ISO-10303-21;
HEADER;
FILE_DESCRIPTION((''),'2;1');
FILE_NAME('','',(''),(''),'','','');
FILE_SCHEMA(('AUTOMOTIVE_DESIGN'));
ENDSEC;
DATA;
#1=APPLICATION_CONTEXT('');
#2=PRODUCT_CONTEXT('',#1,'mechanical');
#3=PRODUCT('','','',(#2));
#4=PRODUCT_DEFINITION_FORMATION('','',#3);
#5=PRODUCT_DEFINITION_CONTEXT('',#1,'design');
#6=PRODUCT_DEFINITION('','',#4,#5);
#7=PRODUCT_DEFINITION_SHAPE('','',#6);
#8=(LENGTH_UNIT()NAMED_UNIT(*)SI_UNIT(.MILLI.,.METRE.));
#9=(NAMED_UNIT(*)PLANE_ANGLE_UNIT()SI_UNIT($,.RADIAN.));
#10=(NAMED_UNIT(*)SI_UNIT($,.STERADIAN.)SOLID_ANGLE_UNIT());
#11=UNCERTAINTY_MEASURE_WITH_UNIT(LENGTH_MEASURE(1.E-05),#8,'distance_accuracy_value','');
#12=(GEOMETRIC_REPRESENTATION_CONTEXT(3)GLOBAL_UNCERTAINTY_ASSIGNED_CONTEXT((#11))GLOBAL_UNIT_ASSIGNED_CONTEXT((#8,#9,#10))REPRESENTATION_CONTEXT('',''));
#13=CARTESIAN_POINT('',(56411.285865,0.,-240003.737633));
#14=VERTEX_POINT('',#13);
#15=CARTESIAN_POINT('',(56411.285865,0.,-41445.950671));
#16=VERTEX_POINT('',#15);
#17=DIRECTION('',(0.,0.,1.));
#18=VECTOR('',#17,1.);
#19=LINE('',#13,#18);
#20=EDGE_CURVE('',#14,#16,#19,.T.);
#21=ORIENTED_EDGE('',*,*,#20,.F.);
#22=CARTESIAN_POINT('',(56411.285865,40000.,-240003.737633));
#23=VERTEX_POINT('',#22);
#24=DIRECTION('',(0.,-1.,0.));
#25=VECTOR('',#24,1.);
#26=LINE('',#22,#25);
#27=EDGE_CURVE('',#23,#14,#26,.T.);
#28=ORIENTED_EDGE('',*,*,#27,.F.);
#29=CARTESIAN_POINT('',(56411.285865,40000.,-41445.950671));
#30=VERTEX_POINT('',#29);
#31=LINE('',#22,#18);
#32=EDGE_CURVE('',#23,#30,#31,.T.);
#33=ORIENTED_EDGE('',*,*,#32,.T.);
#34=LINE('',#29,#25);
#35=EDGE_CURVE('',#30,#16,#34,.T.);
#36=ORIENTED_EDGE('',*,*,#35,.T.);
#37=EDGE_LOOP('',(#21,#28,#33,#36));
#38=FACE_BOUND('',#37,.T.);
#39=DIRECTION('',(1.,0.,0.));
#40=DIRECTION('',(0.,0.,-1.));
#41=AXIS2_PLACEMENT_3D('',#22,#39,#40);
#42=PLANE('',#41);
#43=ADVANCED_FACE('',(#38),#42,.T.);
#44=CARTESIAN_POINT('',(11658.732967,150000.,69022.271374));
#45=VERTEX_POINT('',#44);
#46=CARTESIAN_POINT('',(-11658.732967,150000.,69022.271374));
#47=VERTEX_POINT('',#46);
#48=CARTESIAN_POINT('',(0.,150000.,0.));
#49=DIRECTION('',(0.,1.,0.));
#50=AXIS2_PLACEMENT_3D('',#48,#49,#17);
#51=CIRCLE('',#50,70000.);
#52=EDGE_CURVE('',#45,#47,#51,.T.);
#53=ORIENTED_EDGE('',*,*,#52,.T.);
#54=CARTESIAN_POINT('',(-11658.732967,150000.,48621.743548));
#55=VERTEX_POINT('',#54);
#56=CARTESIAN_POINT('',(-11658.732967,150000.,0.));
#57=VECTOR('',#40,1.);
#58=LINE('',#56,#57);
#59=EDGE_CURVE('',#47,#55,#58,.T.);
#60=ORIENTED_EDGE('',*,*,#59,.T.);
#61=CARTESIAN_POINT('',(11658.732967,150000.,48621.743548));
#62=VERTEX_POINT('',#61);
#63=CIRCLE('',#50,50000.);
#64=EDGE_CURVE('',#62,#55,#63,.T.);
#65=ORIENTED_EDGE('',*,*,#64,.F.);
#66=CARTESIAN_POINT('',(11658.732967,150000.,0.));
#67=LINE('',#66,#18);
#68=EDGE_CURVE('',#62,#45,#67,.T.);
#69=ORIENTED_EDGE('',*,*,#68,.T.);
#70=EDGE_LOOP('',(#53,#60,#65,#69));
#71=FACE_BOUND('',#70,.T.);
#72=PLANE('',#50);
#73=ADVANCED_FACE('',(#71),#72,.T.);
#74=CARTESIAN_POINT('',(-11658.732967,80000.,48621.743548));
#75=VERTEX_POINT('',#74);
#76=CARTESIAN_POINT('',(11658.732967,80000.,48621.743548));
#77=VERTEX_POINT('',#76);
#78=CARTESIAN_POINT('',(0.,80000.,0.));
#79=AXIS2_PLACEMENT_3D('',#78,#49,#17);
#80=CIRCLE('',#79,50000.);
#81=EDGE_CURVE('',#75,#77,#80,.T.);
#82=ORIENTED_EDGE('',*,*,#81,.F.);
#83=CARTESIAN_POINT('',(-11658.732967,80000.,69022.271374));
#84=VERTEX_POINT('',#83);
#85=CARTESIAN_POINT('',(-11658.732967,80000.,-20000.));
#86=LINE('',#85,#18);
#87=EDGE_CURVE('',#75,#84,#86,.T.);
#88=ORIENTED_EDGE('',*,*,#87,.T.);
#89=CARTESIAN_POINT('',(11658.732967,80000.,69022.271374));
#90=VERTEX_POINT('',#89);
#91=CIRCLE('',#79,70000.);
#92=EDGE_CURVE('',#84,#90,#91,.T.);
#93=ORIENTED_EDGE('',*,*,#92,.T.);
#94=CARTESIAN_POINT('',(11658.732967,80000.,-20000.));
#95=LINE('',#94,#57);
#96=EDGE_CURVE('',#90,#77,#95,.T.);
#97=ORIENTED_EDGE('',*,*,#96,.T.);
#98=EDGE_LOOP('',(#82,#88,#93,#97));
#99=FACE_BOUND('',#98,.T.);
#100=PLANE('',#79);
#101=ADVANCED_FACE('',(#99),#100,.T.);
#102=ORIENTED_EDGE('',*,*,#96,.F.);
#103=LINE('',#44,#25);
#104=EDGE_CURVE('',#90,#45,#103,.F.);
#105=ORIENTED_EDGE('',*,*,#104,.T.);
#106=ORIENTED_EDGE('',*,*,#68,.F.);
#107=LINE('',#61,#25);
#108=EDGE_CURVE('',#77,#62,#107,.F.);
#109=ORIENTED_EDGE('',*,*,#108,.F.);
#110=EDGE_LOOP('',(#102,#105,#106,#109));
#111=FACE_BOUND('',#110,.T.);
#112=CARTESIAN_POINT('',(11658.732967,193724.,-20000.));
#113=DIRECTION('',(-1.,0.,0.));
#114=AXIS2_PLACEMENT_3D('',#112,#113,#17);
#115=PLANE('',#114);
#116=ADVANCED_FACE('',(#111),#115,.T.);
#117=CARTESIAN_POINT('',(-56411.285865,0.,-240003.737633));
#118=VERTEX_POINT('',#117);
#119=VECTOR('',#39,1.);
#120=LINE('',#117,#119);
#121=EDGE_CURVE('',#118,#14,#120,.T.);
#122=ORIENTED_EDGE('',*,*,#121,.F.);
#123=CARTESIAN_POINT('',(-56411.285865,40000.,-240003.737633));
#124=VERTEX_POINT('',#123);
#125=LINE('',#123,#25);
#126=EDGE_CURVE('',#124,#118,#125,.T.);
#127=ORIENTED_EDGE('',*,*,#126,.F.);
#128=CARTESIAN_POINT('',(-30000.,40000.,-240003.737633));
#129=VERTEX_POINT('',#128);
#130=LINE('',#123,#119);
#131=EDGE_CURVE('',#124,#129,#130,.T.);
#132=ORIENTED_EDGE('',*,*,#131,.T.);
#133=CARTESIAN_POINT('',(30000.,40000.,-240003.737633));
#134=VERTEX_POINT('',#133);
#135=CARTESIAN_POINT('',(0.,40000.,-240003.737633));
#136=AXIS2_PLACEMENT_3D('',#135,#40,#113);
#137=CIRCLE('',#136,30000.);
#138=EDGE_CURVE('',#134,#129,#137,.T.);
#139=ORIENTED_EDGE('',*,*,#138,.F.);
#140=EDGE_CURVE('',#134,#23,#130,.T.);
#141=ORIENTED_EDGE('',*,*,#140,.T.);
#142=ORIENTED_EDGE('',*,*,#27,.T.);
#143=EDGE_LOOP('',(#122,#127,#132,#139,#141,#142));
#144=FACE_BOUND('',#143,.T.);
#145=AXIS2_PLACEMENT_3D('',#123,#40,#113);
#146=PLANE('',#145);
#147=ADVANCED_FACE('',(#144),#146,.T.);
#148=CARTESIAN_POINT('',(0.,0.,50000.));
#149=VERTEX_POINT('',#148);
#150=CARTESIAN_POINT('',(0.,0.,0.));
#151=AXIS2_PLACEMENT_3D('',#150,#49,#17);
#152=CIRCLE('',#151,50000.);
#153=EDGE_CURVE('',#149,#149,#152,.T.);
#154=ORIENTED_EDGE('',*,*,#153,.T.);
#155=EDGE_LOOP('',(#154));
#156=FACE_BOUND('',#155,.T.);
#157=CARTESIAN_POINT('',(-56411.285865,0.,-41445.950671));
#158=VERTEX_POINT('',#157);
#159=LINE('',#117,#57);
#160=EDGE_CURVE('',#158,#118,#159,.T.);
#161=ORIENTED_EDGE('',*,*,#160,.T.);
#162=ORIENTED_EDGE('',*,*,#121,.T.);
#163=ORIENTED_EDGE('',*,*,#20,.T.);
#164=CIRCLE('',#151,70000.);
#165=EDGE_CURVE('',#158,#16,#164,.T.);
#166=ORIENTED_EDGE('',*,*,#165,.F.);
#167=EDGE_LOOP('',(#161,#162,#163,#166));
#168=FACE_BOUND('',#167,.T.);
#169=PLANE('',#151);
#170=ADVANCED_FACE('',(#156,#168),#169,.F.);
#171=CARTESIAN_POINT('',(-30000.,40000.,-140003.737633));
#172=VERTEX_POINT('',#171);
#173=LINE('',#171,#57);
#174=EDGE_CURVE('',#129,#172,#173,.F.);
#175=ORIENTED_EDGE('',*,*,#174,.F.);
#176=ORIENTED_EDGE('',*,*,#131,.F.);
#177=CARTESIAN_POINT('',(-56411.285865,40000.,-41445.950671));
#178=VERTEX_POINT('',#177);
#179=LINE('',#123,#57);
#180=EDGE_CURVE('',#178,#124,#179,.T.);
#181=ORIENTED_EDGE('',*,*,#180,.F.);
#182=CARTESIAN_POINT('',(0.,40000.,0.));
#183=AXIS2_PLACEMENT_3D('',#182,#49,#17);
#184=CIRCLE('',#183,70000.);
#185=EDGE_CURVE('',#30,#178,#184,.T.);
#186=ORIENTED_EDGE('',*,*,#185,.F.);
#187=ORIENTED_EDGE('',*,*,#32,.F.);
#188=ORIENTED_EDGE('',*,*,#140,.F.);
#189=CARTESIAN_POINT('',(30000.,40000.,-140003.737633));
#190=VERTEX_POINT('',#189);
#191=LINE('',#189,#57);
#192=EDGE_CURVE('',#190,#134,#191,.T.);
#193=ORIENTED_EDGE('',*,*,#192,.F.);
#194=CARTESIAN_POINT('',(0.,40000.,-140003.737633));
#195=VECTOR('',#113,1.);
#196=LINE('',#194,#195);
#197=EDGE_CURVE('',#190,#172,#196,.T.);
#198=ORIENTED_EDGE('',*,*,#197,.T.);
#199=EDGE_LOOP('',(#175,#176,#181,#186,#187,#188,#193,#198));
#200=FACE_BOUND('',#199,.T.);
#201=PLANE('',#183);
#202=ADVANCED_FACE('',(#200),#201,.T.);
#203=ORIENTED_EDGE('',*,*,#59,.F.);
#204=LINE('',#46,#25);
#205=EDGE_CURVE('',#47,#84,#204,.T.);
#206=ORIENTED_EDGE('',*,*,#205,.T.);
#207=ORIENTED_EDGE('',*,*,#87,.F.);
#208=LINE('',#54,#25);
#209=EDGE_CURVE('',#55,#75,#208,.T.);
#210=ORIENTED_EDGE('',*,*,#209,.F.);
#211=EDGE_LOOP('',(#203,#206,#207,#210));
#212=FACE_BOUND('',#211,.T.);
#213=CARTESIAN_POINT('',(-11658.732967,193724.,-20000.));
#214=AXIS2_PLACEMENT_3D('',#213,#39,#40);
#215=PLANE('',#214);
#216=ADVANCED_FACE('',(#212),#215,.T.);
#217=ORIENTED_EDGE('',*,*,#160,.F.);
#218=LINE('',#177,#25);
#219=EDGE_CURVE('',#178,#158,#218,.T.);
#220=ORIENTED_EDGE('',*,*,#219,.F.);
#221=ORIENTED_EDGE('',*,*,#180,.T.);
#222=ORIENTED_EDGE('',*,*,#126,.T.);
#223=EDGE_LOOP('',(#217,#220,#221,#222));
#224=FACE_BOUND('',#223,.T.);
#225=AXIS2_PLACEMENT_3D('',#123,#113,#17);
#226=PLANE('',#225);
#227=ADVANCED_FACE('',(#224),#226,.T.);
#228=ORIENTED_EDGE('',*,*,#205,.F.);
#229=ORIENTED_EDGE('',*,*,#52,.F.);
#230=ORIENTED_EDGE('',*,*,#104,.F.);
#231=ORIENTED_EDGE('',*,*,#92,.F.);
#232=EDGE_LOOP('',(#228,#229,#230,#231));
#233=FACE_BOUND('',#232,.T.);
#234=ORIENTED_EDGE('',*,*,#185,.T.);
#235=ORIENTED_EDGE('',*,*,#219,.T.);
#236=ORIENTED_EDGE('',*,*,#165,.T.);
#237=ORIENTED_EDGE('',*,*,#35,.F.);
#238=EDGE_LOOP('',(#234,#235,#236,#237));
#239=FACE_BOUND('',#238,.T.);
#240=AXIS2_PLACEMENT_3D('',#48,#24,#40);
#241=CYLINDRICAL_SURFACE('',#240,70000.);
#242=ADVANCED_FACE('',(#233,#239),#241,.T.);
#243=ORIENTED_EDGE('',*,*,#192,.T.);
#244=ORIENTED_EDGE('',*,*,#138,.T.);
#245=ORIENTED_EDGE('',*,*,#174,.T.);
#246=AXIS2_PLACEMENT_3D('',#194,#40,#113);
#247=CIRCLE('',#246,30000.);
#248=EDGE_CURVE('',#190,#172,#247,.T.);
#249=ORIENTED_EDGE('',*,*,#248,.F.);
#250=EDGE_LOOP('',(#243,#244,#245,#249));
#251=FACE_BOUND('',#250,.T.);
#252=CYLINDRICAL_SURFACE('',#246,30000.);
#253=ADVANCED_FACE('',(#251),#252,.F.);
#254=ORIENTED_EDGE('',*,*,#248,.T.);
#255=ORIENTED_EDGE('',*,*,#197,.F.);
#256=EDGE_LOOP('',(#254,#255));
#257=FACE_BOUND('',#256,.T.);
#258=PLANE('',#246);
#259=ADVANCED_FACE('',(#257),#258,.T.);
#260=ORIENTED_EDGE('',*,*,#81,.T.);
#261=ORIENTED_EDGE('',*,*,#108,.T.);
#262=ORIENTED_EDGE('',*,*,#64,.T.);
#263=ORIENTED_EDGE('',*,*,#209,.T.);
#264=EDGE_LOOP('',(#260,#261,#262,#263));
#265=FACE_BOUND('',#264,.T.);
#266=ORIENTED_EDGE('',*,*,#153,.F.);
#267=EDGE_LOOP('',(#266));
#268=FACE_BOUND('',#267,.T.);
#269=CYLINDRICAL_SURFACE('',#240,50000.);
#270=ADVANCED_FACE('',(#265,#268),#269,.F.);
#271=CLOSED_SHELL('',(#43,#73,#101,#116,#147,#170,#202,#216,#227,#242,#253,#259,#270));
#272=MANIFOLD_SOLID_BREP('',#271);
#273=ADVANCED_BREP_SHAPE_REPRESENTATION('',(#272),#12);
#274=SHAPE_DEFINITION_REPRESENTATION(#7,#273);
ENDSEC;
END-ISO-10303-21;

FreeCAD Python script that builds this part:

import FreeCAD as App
import Part
import Sketcher
Q = App.Units.Quantity


def add_polygon(sketch, points):
    """Adds a closed chain of lines whose ends are joined by coincident constraints."""
    first, n = sketch.GeometryCount, len(points)
    for a, b in zip(points, points[1:] + points[:1]):
        sketch.addGeometry(Part.LineSegment(App.Vector(*a, 0), App.Vector(*b, 0)), False)
    for i in range(n):
        sketch.addConstraint(Sketcher.Constraint("Coincident", first + i, 2, first + (i + 1) % n, 1))

doc = App.newDocument("Part")
body = doc.addObject("PartDesign::Body", "Body")

sketch1 = body.newObject("Sketcher::SketchObject", "Sketch")
sketch1.AttachmentSupport = (doc.getObject("XZ_Plane"), [""])
sketch1.MapMode = "FlatFace"
sketch1.addGeometry(Part.Circle(App.Vector(0, 0, 0), App.Vector(0, 0, 1), 70000), False)
sketch1.addGeometry(Part.Circle(App.Vector(0, 0, 0), App.Vector(0, 0, 1), 50000), False)
sketch1.addConstraint(Sketcher.Constraint("Coincident", 0, 3, -1, 1))
sketch1.addConstraint(Sketcher.Constraint("Coincident", 1, 3, -1, 1))
sketch1.addConstraint(Sketcher.Constraint("Diameter", 0, Q("140000 mm")))
sketch1.addConstraint(Sketcher.Constraint("Diameter", 1, Q("100000 mm")))
pad1 = body.newObject("PartDesign::Pad", "Pad")
pad1.Profile = sketch1
pad1.Length = 150000
pad1.Reversed = True

sketch2 = body.newObject("Sketcher::SketchObject", "Sketch001")
sketch2.AttachmentSupport = (doc.getObject("XZ_Plane"), [""])
sketch2.MapMode = "FlatFace"
add_polygon(sketch2, [(-56411.285865, -41445.950671), (-56411.285865, -240003.737633), (56411.285865, -240003.737633), (56411.285865, -41445.950671)])
sketch2.addConstraint(Sketcher.Constraint("Vertical", 0))
sketch2.addConstraint(Sketcher.Constraint("Horizontal", 1))
sketch2.addConstraint(Sketcher.Constraint("Vertical", 2))
sketch2.addConstraint(Sketcher.Constraint("Horizontal", 3))
sketch2.addConstraint(Sketcher.Constraint("DistanceX", 1, 1, 1, 2, Q("112822.571731 mm")))
sketch2.addConstraint(Sketcher.Constraint("DistanceY", 0, 2, 0, 1, Q("198557.786962 mm")))
sketch2.addConstraint(Sketcher.Constraint("DistanceY", 2, 2, -1, 1, Q("41445.950671 mm")))
sketch2.addConstraint(Sketcher.Constraint("DistanceX", 0, 2, -1, 1, Q("56411.285865 mm")))
pad2 = body.newObject("PartDesign::Pad", "Pad001")
pad2.Profile = sketch2
pad2.Length = 40000
pad2.Reversed = True

sketch3 = body.newObject("Sketcher::SketchObject", "Sketch002")
sketch3.AttachmentSupport = (doc.getObject("XY_Plane"), [""])
sketch3.MapMode = "FlatFace"
sketch3.AttachmentOffset = App.Placement(App.Vector(0, 0, -240003.737633), App.Rotation())
sketch3.addGeometry(Part.Circle(App.Vector(0, 40000, 0), App.Vector(0, 0, 1), 30000), False)
sketch3.addConstraint(Sketcher.Constraint("PointOnObject", 0, 3, -2))
sketch3.addConstraint(Sketcher.Constraint("Diameter", 0, Q("60000 mm")))
sketch3.addConstraint(Sketcher.Constraint("DistanceY", -1, 1, 0, 3, Q("40000 mm")))
pocket1 = body.newObject("PartDesign::Pocket", "Pocket")
pocket1.Profile = sketch3
pocket1.Length = 100000
pocket1.Reversed = True

sketch4 = body.newObject("Sketcher::SketchObject", "Sketch003")
sketch4.AttachmentSupport = (doc.getObject("XZ_Plane"), [""])
sketch4.MapMode = "FlatFace"
sketch4.AttachmentOffset = App.Placement(App.Vector(0, 0, -40000), App.Rotation())
sketch4.addGeometry(Part.Circle(App.Vector(0, 0, 0), App.Vector(0, 0, 1), 50000), False)
sketch4.addConstraint(Sketcher.Constraint("Coincident", 0, 3, -1, 1))
sketch4.addConstraint(Sketcher.Constraint("Diameter", 0, Q("100000 mm")))
pocket2 = body.newObject("PartDesign::Pocket", "Pocket001")
pocket2.Profile = sketch4
pocket2.Type = "ThroughAll"
pocket2.Midplane = True

sketch5 = body.newObject("Sketcher::SketchObject", "Sketch004")
sketch5.AttachmentSupport = (doc.getObject("XZ_Plane"), [""])
sketch5.MapMode = "FlatFace"
sketch5.AttachmentOffset = App.Placement(App.Vector(0, 0, -150000), App.Rotation())
add_polygon(sketch5, [(-11658.732967, -20000), (-11658.732967, 84003.86631), (11658.732967, 84003.86631), (11658.732967, -20000)])
sketch5.addConstraint(Sketcher.Constraint("Vertical", 0))
sketch5.addConstraint(Sketcher.Constraint("Horizontal", 1))
sketch5.addConstraint(Sketcher.Constraint("Vertical", 2))
sketch5.addConstraint(Sketcher.Constraint("Horizontal", 3))
sketch5.addConstraint(Sketcher.Constraint("DistanceY", 2, 2, -1, 1, Q("20000 mm")))
sketch5.addConstraint(Sketcher.Constraint("DistanceY", 0, 1, 0, 2, Q("104003.86631 mm")))
sketch5.addConstraint(Sketcher.Constraint("DistanceX", 1, 1, 1, 2, Q("23317.465934 mm")))
sketch5.addConstraint(Sketcher.Constraint("DistanceX", 0, 2, -1, 1, Q("11658.732967 mm")))
pocket3 = body.newObject("PartDesign::Pocket", "Pocket002")
pocket3.Profile = sketch5
pocket3.Type = "TwoLengths"
pocket3.Length = 43724
pocket3.Length2 = 70000

doc.recompute()
